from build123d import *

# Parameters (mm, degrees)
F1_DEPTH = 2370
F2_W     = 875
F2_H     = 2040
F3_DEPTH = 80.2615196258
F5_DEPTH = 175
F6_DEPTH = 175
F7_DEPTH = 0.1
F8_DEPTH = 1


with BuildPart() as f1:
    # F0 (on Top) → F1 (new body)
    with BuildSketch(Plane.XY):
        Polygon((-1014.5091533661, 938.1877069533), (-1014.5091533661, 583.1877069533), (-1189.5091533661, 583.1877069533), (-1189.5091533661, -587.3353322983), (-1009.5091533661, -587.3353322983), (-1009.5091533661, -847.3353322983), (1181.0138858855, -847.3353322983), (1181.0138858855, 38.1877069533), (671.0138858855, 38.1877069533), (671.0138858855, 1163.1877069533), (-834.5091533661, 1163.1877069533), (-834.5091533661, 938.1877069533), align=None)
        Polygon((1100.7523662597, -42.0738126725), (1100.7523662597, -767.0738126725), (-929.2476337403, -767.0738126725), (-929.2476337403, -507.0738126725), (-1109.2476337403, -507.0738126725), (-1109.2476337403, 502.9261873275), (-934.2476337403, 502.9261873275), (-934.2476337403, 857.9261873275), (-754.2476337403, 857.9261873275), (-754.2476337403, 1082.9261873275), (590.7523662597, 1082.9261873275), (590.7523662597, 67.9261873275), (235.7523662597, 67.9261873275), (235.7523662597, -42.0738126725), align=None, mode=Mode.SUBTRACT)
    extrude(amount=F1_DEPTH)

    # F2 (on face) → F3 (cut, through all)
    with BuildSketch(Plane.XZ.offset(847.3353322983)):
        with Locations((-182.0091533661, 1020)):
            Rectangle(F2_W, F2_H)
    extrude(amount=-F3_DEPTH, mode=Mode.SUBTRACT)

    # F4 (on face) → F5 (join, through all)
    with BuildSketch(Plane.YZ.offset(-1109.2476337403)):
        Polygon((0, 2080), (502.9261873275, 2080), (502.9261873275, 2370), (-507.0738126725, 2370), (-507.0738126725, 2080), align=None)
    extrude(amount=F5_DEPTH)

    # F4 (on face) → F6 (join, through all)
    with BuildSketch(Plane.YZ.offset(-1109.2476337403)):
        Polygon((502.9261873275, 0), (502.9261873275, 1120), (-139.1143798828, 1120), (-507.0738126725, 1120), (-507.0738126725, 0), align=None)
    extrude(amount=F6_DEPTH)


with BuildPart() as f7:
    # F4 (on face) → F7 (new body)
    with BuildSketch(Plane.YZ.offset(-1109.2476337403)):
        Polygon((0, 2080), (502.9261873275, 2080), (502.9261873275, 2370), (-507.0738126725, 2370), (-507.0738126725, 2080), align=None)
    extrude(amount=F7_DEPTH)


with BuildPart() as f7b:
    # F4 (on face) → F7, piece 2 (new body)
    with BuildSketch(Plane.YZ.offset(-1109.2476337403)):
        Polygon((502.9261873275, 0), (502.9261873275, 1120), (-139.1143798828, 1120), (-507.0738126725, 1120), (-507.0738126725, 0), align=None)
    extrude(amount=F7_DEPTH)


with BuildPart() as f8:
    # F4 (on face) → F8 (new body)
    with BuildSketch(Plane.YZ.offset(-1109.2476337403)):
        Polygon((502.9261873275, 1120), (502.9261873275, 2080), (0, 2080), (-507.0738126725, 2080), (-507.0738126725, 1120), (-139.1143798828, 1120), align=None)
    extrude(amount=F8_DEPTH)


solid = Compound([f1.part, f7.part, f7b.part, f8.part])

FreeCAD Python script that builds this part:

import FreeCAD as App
import Part
import Sketcher
from FreeCAD import Vector

doc = App.newDocument("Part")
params = doc.addObject("Spreadsheet::Sheet", "Params")
for row, (alias, value) in enumerate([
    ("sketch1_width", "175 mm"),
    ("sketch1_width2", "180 mm"),
    ("sketch1_width3", "510 mm"),
    ("sketch1_width4", "865 mm"),
    ("sketch1_width5", "2030 mm"),
    ("pad1_length", "2370 mm"),
    ("sketch2_width", "875 mm"),
    ("sketch2_height", "2040 mm"),
    ("pocket1_length", "80.26152 mm"),
    ("sketch3_width", "1010 mm"),
    ("sketch3_height", "290 mm"),
    ("pad2_length", "175 mm"),
    ("sketch4_width", "1010 mm"),
    ("sketch4_height", "1120 mm"),
    ("pad3_length", "175 mm"),
    ("sketch5_width", "1010 mm"),
    ("sketch5_height", "290 mm"),
    ("pad4_length", "0.1 mm"),
    ("sketch6_width", "1010 mm"),
    ("sketch6_height", "1120 mm"),
    ("pad5_length", "0.1 mm"),
    ("sketch7_width", "1010 mm"),
    ("sketch7_height", "960 mm"),
    ("pad6_length", "1 mm"),
], start=1):
    params.set(f"A{row}", alias)
    params.set(f"B{row}", "=" + value)
    params.setAlias(f"B{row}", alias)

body = doc.addObject("PartDesign::Body", "Body")

# Sketch on XY plane
sketch1 = body.newObject("Sketcher::SketchObject", "Sketch")
sketch1.AttachmentSupport = (doc.getObject("XY_Plane"), [""])
sketch1.MapMode = "FlatFace"
sketch1.addGeometry(Part.LineSegment(Vector(-1015, 938, 0), Vector(-1015, 583, 0)), False)
sketch1.addGeometry(Part.LineSegment(Vector(-1015, 583, 0), Vector(-1190, 583, 0)), False)
sketch1.addGeometry(Part.LineSegment(Vector(-1190, 583, 0), Vector(-1190, -587, 0)), False)
sketch1.addGeometry(Part.LineSegment(Vector(-1190, -587, 0), Vector(-1010, -587, 0)), False)
sketch1.addGeometry(Part.LineSegment(Vector(-1010, -587, 0), Vector(-1010, -847, 0)), False)
sketch1.addGeometry(Part.LineSegment(Vector(-1010, -847, 0), Vector(1181, -847, 0)), False)
sketch1.addGeometry(Part.LineSegment(Vector(1181, -847, 0), Vector(1181, 38, 0)), False)
sketch1.addGeometry(Part.LineSegment(Vector(1181, 38, 0), Vector(671, 38, 0)), False)
sketch1.addGeometry(Part.LineSegment(Vector(671, 38, 0), Vector(671, 1163, 0)), False)
sketch1.addGeometry(Part.LineSegment(Vector(671, 1163, 0), Vector(-835, 1163, 0)), False)
sketch1.addGeometry(Part.LineSegment(Vector(-835, 1163, 0), Vector(-835, 938, 0)), False)
sketch1.addGeometry(Part.LineSegment(Vector(-835, 938, 0), Vector(-1015, 938, 0)), False)
sketch1.addGeometry(Part.LineSegment(Vector(236, -42, 0), Vector(1101, -42, 0)), False)
sketch1.addGeometry(Part.LineSegment(Vector(1101, -42, 0), Vector(1101, -767, 0)), False)
sketch1.addGeometry(Part.LineSegment(Vector(1101, -767, 0), Vector(-929, -767, 0)), False)
sketch1.addGeometry(Part.LineSegment(Vector(-929, -767, 0), Vector(-929, -507, 0)), False)
sketch1.addGeometry(Part.LineSegment(Vector(-929, -507, 0), Vector(-1109, -507, 0)), False)
sketch1.addGeometry(Part.LineSegment(Vector(-1109, -507, 0), Vector(-1109, 503, 0)), False)
sketch1.addGeometry(Part.LineSegment(Vector(-1109, 503, 0), Vector(-934, 503, 0)), False)
sketch1.addGeometry(Part.LineSegment(Vector(-934, 503, 0), Vector(-934, 858, 0)), False)
sketch1.addGeometry(Part.LineSegment(Vector(-934, 858, 0), Vector(-754, 858, 0)), False)
sketch1.addGeometry(Part.LineSegment(Vector(-754, 858, 0), Vector(-754, 1083, 0)), False)
sketch1.addGeometry(Part.LineSegment(Vector(-754, 1083, 0), Vector(591, 1083, 0)), False)
sketch1.addGeometry(Part.LineSegment(Vector(591, 1083, 0), Vector(591, 68, 0)), False)
sketch1.addGeometry(Part.LineSegment(Vector(591, 68, 0), Vector(236, 68, 0)), False)
sketch1.addGeometry(Part.LineSegment(Vector(236, 68, 0), Vector(236, -42, 0)), False)
sketch1.addConstraint(Sketcher.Constraint("Coincident", 0, 2, 1, 1))
sketch1.addConstraint(Sketcher.Constraint("Coincident", 1, 2, 2, 1))
sketch1.addConstraint(Sketcher.Constraint("Coincident", 2, 2, 3, 1))
sketch1.addConstraint(Sketcher.Constraint("Coincident", 3, 2, 4, 1))
sketch1.addConstraint(Sketcher.Constraint("Coincident", 4, 2, 5, 1))
sketch1.addConstraint(Sketcher.Constraint("Coincident", 5, 2, 6, 1))
sketch1.addConstraint(Sketcher.Constraint("Coincident", 6, 2, 7, 1))
sketch1.addConstraint(Sketcher.Constraint("Coincident", 7, 2, 8, 1))
sketch1.addConstraint(Sketcher.Constraint("Coincident", 8, 2, 9, 1))
sketch1.addConstraint(Sketcher.Constraint("Coincident", 9, 2, 10, 1))
sketch1.addConstraint(Sketcher.Constraint("Coincident", 10, 2, 11, 1))
sketch1.addConstraint(Sketcher.Constraint("Coincident", 11, 2, 0, 1))
sketch1.addConstraint(Sketcher.Constraint("Coincident", 12, 2, 13, 1))
sketch1.addConstraint(Sketcher.Constraint("Coincident", 13, 2, 14, 1))
sketch1.addConstraint(Sketcher.Constraint("Coincident", 14, 2, 15, 1))
sketch1.addConstraint(Sketcher.Constraint("Coincident", 15, 2, 16, 1))
sketch1.addConstraint(Sketcher.Constraint("Coincident", 16, 2, 17, 1))
sketch1.addConstraint(Sketcher.Constraint("Coincident", 17, 2, 18, 1))
sketch1.addConstraint(Sketcher.Constraint("Coincident", 18, 2, 19, 1))
sketch1.addConstraint(Sketcher.Constraint("Coincident", 19, 2, 20, 1))
sketch1.addConstraint(Sketcher.Constraint("Coincident", 20, 2, 21, 1))
sketch1.addConstraint(Sketcher.Constraint("Coincident", 21, 2, 22, 1))
sketch1.addConstraint(Sketcher.Constraint("Coincident", 22, 2, 23, 1))
sketch1.addConstraint(Sketcher.Constraint("Coincident", 23, 2, 24, 1))
sketch1.addConstraint(Sketcher.Constraint("Coincident", 24, 2, 25, 1))
sketch1.addConstraint(Sketcher.Constraint("Coincident", 25, 2, 12, 1))
sketch1.addConstraint(Sketcher.Constraint("Vertical", 0))
sketch1.addConstraint(Sketcher.Constraint("Horizontal", 1))
sketch1.addConstraint(Sketcher.Constraint("Vertical", 2))
sketch1.addConstraint(Sketcher.Constraint("Horizontal", 3))
sketch1.addConstraint(Sketcher.Constraint("Vertical", 4))
sketch1.addConstraint(Sketcher.Constraint("Horizontal", 5))
sketch1.addConstraint(Sketcher.Constraint("Vertical", 6))
sketch1.addConstraint(Sketcher.Constraint("Horizontal", 7))
sketch1.addConstraint(Sketcher.Constraint("Vertical", 8))
sketch1.addConstraint(Sketcher.Constraint("Horizontal", 9))
sketch1.addConstraint(Sketcher.Constraint("Vertical", 10))
sketch1.addConstraint(Sketcher.Constraint("Horizontal", 11))
sketch1.addConstraint(Sketcher.Constraint("Horizontal", 12))
sketch1.addConstraint(Sketcher.Constraint("Vertical", 13))
sketch1.addConstraint(Sketcher.Constraint("Horizontal", 14))
sketch1.addConstraint(Sketcher.Constraint("Vertical", 15))
sketch1.addConstraint(Sketcher.Constraint("Horizontal", 16))
sketch1.addConstraint(Sketcher.Constraint("Vertical", 17))
sketch1.addConstraint(Sketcher.Constraint("Horizontal", 18))
sketch1.addConstraint(Sketcher.Constraint("Vertical", 19))
sketch1.addConstraint(Sketcher.Constraint("Horizontal", 20))
sketch1.addConstraint(Sketcher.Constraint("Vertical", 21))
sketch1.addConstraint(Sketcher.Constraint("Horizontal", 22))
sketch1.addConstraint(Sketcher.Constraint("Vertical", 23))
sketch1.addConstraint(Sketcher.Constraint("Horizontal", 24))
sketch1.addConstraint(Sketcher.Constraint("Vertical", 25))
sketch1.addConstraint(Sketcher.Constraint("Equal", 3, 11))
sketch1.addConstraint(Sketcher.Constraint("Equal", 11, 16))
sketch1.addConstraint(Sketcher.Constraint("Equal", 1, 18))
sketch1.addConstraint(Sketcher.Constraint("Equal", 16, 20))
sketch1.addConstraint(Sketcher.Constraint("Equal", 24, 0))
sketch1.addConstraint(Sketcher.Constraint("Equal", 4, 15))
sketch1.addConstraint(Sketcher.Constraint("Equal", 0, 19))
sketch1.addConstraint(Sketcher.Constraint("Equal", 10, 21))
sketch1.addConstraint(Sketcher.Constraint("DistanceX", 1, 2, 1, 1, 175.0))
sketch1.addConstraint(Sketcher.Constraint("DistanceX", 3, 1, 3, 2, 180.0))
sketch1.addConstraint(Sketcher.Constraint("DistanceX", 7, 2, 7, 1, 510.0))
sketch1.addConstraint(Sketcher.Constraint("DistanceX", 12, 1, 12, 2, 865.0))
sketch1.addConstraint(Sketcher.Constraint("DistanceX", 14, 2, 14, 1, 2030.0))
sketch1.addConstraint(Sketcher.Constraint("DistanceX", 22, 1, 22, 2, 1345.0))
sketch1.addConstraint(Sketcher.Constraint("DistanceY", 4, 2, 4, 1, 260.0))
sketch1.addConstraint(Sketcher.Constraint("DistanceY", 8, 1, 8, 2, 1125.0))
sketch1.addConstraint(Sketcher.Constraint("DistanceY", 10, 2, 10, 1, 225.0))
sketch1.addConstraint(Sketcher.Constraint("DistanceY", 13, 2, 13, 1, 725.0))
sketch1.addConstraint(Sketcher.Constraint("DistanceY", 17, 1, 17, 2, 1010.0))
sketch1.addConstraint(Sketcher.Constraint("DistanceY", 23, 2, 23, 1, 1015.0))
sketch1.addConstraint(Sketcher.Constraint("DistanceX", 5, 1, 5, 2, 2190.523039))
sketch1.addConstraint(Sketcher.Constraint("DistanceY", 2, 2, 2, 1, 1170.523039))
sketch1.addConstraint(Sketcher.Constraint("DistanceX", 12, 2, 6, 2, 80.26152))
sketch1.addConstraint(Sketcher.Constraint("DistanceY", 12, 2, 6, 2, 80.26152))
sketch1.addConstraint(Sketcher.Constraint("DistanceX", 0, 2, -1, 1, 1014.509153))
sketch1.addConstraint(Sketcher.Constraint("DistanceY", -1, 1, 0, 2, 583.187707))
sketch1.setExpression("Constraints[60]", "Params.sketch1_width")
sketch1.setExpression("Constraints[61]", "Params.sketch1_width2")
sketch1.setExpression("Constraints[62]", "Params.sketch1_width3")
sketch1.setExpression("Constraints[63]", "Params.sketch1_width4")
sketch1.setExpression("Constraints[64]", "Params.sketch1_width5")
pad1 = body.newObject("PartDesign::Pad", "Pad")
pad1.Profile = sketch1
pad1.setExpression("Length", "Params.pad1_length")

# Sketch on XZ plane
sketch2 = body.newObject("Sketcher::SketchObject", "Sketch001")
sketch2.AttachmentSupport = (doc.getObject("XZ_Plane"), [""])
sketch2.MapMode = "FlatFace"
sketch2.AttachmentOffset = App.Placement(Vector(0, 0, 847.335332), App.Rotation())
sketch2.addGeometry(Part.LineSegment(Vector(-620, 2040, 0), Vector(-620, 0, 0)), False)
sketch2.addGeometry(Part.LineSegment(Vector(-620, 0, 0), Vector(255, 0, 0)), False)
sketch2.addGeometry(Part.LineSegment(Vector(255, 0, 0), Vector(255, 2040, 0)), False)
sketch2.addGeometry(Part.LineSegment(Vector(255, 2040, 0), Vector(-620, 2040, 0)), False)
sketch2.addConstraint(Sketcher.Constraint("Coincident", 0, 2, 1, 1))
sketch2.addConstraint(Sketcher.Constraint("Coincident", 1, 2, 2, 1))
sketch2.addConstraint(Sketcher.Constraint("Coincident", 2, 2, 3, 1))
sketch2.addConstraint(Sketcher.Constraint("Coincident", 3, 2, 0, 1))
sketch2.addConstraint(Sketcher.Constraint("Vertical", 0))
sketch2.addConstraint(Sketcher.Constraint("Horizontal", 1))
sketch2.addConstraint(Sketcher.Constraint("Vertical", 2))
sketch2.addConstraint(Sketcher.Constraint("Horizontal", 3))
sketch2.addConstraint(Sketcher.Constraint("PointOnObject", 0, 2, -1))
sketch2.addConstraint(Sketcher.Constraint("DistanceX", 1, 1, 1, 2, 875.0))
sketch2.addConstraint(Sketcher.Constraint("DistanceY", 0, 2, 0, 1, 2040.0))
sketch2.addConstraint(Sketcher.Constraint("DistanceX", 0, 2, -1, 1, 619.509153))
sketch2.setExpression("Constraints[9]", "Params.sketch2_width")
sketch2.setExpression("Constraints[10]", "Params.sketch2_height")
pocket1 = body.newObject("PartDesign::Pocket", "Pocket")
pocket1.Profile = sketch2
pocket1.setExpression("Length", "Params.pocket1_length")

# Sketch on YZ plane
sketch3 = body.newObject("Sketcher::SketchObject", "Sketch002")
sketch3.AttachmentSupport = (doc.getObject("YZ_Plane"), [""])
sketch3.MapMode = "FlatFace"
sketch3.AttachmentOffset = App.Placement(Vector(0, 0, -1109.247634), App.Rotation())
sketch3.addGeometry(Part.LineSegment(Vector(503, 2080, 0), Vector(503, 2370, 0)), False)
sketch3.addGeometry(Part.LineSegment(Vector(503, 2370, 0), Vector(-507, 2370, 0)), False)
sketch3.addGeometry(Part.LineSegment(Vector(-507, 2370, 0), Vector(-507, 2080, 0)), False)
sketch3.addGeometry(Part.LineSegment(Vector(-507, 2080, 0), Vector(503, 2080, 0)), False)
sketch3.addConstraint(Sketcher.Constraint("Coincident", 0, 2, 1, 1))
sketch3.addConstraint(Sketcher.Constraint("Coincident", 1, 2, 2, 1))
sketch3.addConstraint(Sketcher.Constraint("Coincident", 2, 2, 3, 1))
sketch3.addConstraint(Sketcher.Constraint("Coincident", 3, 2, 0, 1))
sketch3.addConstraint(Sketcher.Constraint("Vertical", 0))
sketch3.addConstraint(Sketcher.Constraint("Horizontal", 1))
sketch3.addConstraint(Sketcher.Constraint("Vertical", 2))
sketch3.addConstraint(Sketcher.Constraint("Horizontal", 3))
sketch3.addConstraint(Sketcher.Constraint("DistanceX", 1, 2, 1, 1, 1010.0))
sketch3.addConstraint(Sketcher.Constraint("DistanceY", 0, 1, 0, 2, 290.0))
sketch3.addConstraint(Sketcher.Constraint("DistanceY", -1, 1, 0, 2, 2370.0))
sketch3.addConstraint(Sketcher.Constraint("DistanceX", -1, 1, 0, 2, 502.926187))
sketch3.setExpression("Constraints[8]", "Params.sketch3_width")
sketch3.setExpression("Constraints[9]", "Params.sketch3_height")
pad2 = body.newObject("PartDesign::Pad", "Pad001")
pad2.Profile = sketch3
pad2.setExpression("Length", "Params.pad2_length")

# Sketch on YZ plane
sketch4 = body.newObject("Sketcher::SketchObject", "Sketch003")
sketch4.AttachmentSupport = (doc.getObject("YZ_Plane"), [""])
sketch4.MapMode = "FlatFace"
sketch4.AttachmentOffset = App.Placement(Vector(0, 0, -1109.247634), App.Rotation())
sketch4.addGeometry(Part.LineSegment(Vector(503, 0, 0), Vector(503, 1120, 0)), False)
sketch4.addGeometry(Part.LineSegment(Vector(503, 1120, 0), Vector(-507, 1120, 0)), False)
sketch4.addGeometry(Part.LineSegment(Vector(-507, 1120, 0), Vector(-507, 0, 0)), False)
sketch4.addGeometry(Part.LineSegment(Vector(-507, 0, 0), Vector(503, 0, 0)), False)
sketch4.addConstraint(Sketcher.Constraint("Coincident", 0, 2, 1, 1))
sketch4.addConstraint(Sketcher.Constraint("Coincident", 1, 2, 2, 1))
sketch4.addConstraint(Sketcher.Constraint("Coincident", 2, 2, 3, 1))
sketch4.addConstraint(Sketcher.Constraint("Coincident", 3, 2, 0, 1))
sketch4.addConstraint(Sketcher.Constraint("Vertical", 0))
sketch4.addConstraint(Sketcher.Constraint("Horizontal", 1))
sketch4.addConstraint(Sketcher.Constraint("Vertical", 2))
sketch4.addConstraint(Sketcher.Constraint("Horizontal", 3))
sketch4.addConstraint(Sketcher.Constraint("PointOnObject", 2, 2, -1))
sketch4.addConstraint(Sketcher.Constraint("DistanceX", 1, 2, 1, 1, 1010.0))
sketch4.addConstraint(Sketcher.Constraint("DistanceY", 0, 1, 0, 2, 1120.0))
sketch4.addConstraint(Sketcher.Constraint("DistanceX", -1, 1, 0, 2, 502.926187))
sketch4.setExpression("Constraints[9]", "Params.sketch4_width")
sketch4.setExpression("Constraints[10]", "Params.sketch4_height")
pad3 = body.newObject("PartDesign::Pad", "Pad002")
pad3.Profile = sketch4
pad3.setExpression("Length", "Params.pad3_length")
body2 = doc.addObject("PartDesign::Body", "Body001")

# Sketch on YZ plane
sketch5 = body2.newObject("Sketcher::SketchObject", "Sketch004")
sketch5.AttachmentSupport = (doc.getObject("YZ_Plane001"), [""])
sketch5.MapMode = "FlatFace"
sketch5.AttachmentOffset = App.Placement(Vector(0, 0, -1109.247634), App.Rotation())
sketch5.addGeometry(Part.LineSegment(Vector(503, 2080, 0), Vector(503, 2370, 0)), False)
sketch5.addGeometry(Part.LineSegment(Vector(503, 2370, 0), Vector(-507, 2370, 0)), False)
sketch5.addGeometry(Part.LineSegment(Vector(-507, 2370, 0), Vector(-507, 2080, 0)), False)
sketch5.addGeometry(Part.LineSegment(Vector(-507, 2080, 0), Vector(503, 2080, 0)), False)
sketch5.addConstraint(Sketcher.Constraint("Coincident", 0, 2, 1, 1))
sketch5.addConstraint(Sketcher.Constraint("Coincident", 1, 2, 2, 1))
sketch5.addConstraint(Sketcher.Constraint("Coincident", 2, 2, 3, 1))
sketch5.addConstraint(Sketcher.Constraint("Coincident", 3, 2, 0, 1))
sketch5.addConstraint(Sketcher.Constraint("Vertical", 0))
sketch5.addConstraint(Sketcher.Constraint("Horizontal", 1))
sketch5.addConstraint(Sketcher.Constraint("Vertical", 2))
sketch5.addConstraint(Sketcher.Constraint("Horizontal", 3))
sketch5.addConstraint(Sketcher.Constraint("DistanceX", 1, 2, 1, 1, 1010.0))
sketch5.addConstraint(Sketcher.Constraint("DistanceY", 0, 1, 0, 2, 290.0))
sketch5.addConstraint(Sketcher.Constraint("DistanceY", -1, 1, 0, 2, 2370.0))
sketch5.addConstraint(Sketcher.Constraint("DistanceX", -1, 1, 0, 2, 502.926187))
sketch5.setExpression("Constraints[8]", "Params.sketch5_width")
sketch5.setExpression("Constraints[9]", "Params.sketch5_height")
pad4 = body2.newObject("PartDesign::Pad", "Pad003")
pad4.Profile = sketch5
pad4.setExpression("Length", "Params.pad4_length")
body3 = doc.addObject("PartDesign::Body", "Body002")

# Sketch on YZ plane
sketch6 = body3.newObject("Sketcher::SketchObject", "Sketch005")
sketch6.AttachmentSupport = (doc.getObject("YZ_Plane002"), [""])
sketch6.MapMode = "FlatFace"
sketch6.AttachmentOffset = App.Placement(Vector(0, 0, -1109.247634), App.Rotation())
sketch6.addGeometry(Part.LineSegment(Vector(503, 0, 0), Vector(503, 1120, 0)), False)
sketch6.addGeometry(Part.LineSegment(Vector(503, 1120, 0), Vector(-507, 1120, 0)), False)
sketch6.addGeometry(Part.LineSegment(Vector(-507, 1120, 0), Vector(-507, 0, 0)), False)
sketch6.addGeometry(Part.LineSegment(Vector(-507, 0, 0), Vector(503, 0, 0)), False)
sketch6.addConstraint(Sketcher.Constraint("Coincident", 0, 2, 1, 1))
sketch6.addConstraint(Sketcher.Constraint("Coincident", 1, 2, 2, 1))
sketch6.addConstraint(Sketcher.Constraint("Coincident", 2, 2, 3, 1))
sketch6.addConstraint(Sketcher.Constraint("Coincident", 3, 2, 0, 1))
sketch6.addConstraint(Sketcher.Constraint("Vertical", 0))
sketch6.addConstraint(Sketcher.Constraint("Horizontal", 1))
sketch6.addConstraint(Sketcher.Constraint("Vertical", 2))
sketch6.addConstraint(Sketcher.Constraint("Horizontal", 3))
sketch6.addConstraint(Sketcher.Constraint("PointOnObject", 2, 2, -1))
sketch6.addConstraint(Sketcher.Constraint("DistanceX", 1, 2, 1, 1, 1010.0))
sketch6.addConstraint(Sketcher.Constraint("DistanceY", 0, 1, 0, 2, 1120.0))
sketch6.addConstraint(Sketcher.Constraint("DistanceX", -1, 1, 0, 2, 502.926187))
sketch6.setExpression("Constraints[9]", "Params.sketch6_width")
sketch6.setExpression("Constraints[10]", "Params.sketch6_height")
pad5 = body3.newObject("PartDesign::Pad", "Pad004")
pad5.Profile = sketch6
pad5.setExpression("Length", "Params.pad5_length")
body4 = doc.addObject("PartDesign::Body", "Body003")

# Sketch on YZ plane
sketch7 = body4.newObject("Sketcher::SketchObject", "Sketch006")
sketch7.AttachmentSupport = (doc.getObject("YZ_Plane003"), [""])
sketch7.MapMode = "FlatFace"
sketch7.AttachmentOffset = App.Placement(Vector(0, 0, -1109.247634), App.Rotation())
sketch7.addGeometry(Part.LineSegment(Vector(503, 1120, 0), Vector(503, 2080, 0)), False)
sketch7.addGeometry(Part.LineSegment(Vector(503, 2080, 0), Vector(-507, 2080, 0)), False)
sketch7.addGeometry(Part.LineSegment(Vector(-507, 2080, 0), Vector(-507, 1120, 0)), False)
sketch7.addGeometry(Part.LineSegment(Vector(-507, 1120, 0), Vector(503, 1120, 0)), False)
sketch7.addConstraint(Sketcher.Constraint("Coincident", 0, 2, 1, 1))
sketch7.addConstraint(Sketcher.Constraint("Coincident", 1, 2, 2, 1))
sketch7.addConstraint(Sketcher.Constraint("Coincident", 2, 2, 3, 1))
sketch7.addConstraint(Sketcher.Constraint("Coincident", 3, 2, 0, 1))
sketch7.addConstraint(Sketcher.Constraint("Vertical", 0))
sketch7.addConstraint(Sketcher.Constraint("Horizontal", 1))
sketch7.addConstraint(Sketcher.Constraint("Vertical", 2))
sketch7.addConstraint(Sketcher.Constraint("Horizontal", 3))
sketch7.addConstraint(Sketcher.Constraint("DistanceX", 1, 2, 1, 1, 1010.0))
sketch7.addConstraint(Sketcher.Constraint("DistanceY", 0, 1, 0, 2, 960.0))
sketch7.addConstraint(Sketcher.Constraint("DistanceY", -1, 1, 0, 2, 2080.0))
sketch7.addConstraint(Sketcher.Constraint("DistanceX", -1, 1, 0, 2, 502.926187))
sketch7.setExpression("Constraints[8]", "Params.sketch7_width")
sketch7.setExpression("Constraints[9]", "Params.sketch7_height")
pad6 = body4.newObject("PartDesign::Pad", "Pad005")
pad6.Profile = sketch7
pad6.setExpression("Length", "Params.pad6_length")

doc.recompute()
